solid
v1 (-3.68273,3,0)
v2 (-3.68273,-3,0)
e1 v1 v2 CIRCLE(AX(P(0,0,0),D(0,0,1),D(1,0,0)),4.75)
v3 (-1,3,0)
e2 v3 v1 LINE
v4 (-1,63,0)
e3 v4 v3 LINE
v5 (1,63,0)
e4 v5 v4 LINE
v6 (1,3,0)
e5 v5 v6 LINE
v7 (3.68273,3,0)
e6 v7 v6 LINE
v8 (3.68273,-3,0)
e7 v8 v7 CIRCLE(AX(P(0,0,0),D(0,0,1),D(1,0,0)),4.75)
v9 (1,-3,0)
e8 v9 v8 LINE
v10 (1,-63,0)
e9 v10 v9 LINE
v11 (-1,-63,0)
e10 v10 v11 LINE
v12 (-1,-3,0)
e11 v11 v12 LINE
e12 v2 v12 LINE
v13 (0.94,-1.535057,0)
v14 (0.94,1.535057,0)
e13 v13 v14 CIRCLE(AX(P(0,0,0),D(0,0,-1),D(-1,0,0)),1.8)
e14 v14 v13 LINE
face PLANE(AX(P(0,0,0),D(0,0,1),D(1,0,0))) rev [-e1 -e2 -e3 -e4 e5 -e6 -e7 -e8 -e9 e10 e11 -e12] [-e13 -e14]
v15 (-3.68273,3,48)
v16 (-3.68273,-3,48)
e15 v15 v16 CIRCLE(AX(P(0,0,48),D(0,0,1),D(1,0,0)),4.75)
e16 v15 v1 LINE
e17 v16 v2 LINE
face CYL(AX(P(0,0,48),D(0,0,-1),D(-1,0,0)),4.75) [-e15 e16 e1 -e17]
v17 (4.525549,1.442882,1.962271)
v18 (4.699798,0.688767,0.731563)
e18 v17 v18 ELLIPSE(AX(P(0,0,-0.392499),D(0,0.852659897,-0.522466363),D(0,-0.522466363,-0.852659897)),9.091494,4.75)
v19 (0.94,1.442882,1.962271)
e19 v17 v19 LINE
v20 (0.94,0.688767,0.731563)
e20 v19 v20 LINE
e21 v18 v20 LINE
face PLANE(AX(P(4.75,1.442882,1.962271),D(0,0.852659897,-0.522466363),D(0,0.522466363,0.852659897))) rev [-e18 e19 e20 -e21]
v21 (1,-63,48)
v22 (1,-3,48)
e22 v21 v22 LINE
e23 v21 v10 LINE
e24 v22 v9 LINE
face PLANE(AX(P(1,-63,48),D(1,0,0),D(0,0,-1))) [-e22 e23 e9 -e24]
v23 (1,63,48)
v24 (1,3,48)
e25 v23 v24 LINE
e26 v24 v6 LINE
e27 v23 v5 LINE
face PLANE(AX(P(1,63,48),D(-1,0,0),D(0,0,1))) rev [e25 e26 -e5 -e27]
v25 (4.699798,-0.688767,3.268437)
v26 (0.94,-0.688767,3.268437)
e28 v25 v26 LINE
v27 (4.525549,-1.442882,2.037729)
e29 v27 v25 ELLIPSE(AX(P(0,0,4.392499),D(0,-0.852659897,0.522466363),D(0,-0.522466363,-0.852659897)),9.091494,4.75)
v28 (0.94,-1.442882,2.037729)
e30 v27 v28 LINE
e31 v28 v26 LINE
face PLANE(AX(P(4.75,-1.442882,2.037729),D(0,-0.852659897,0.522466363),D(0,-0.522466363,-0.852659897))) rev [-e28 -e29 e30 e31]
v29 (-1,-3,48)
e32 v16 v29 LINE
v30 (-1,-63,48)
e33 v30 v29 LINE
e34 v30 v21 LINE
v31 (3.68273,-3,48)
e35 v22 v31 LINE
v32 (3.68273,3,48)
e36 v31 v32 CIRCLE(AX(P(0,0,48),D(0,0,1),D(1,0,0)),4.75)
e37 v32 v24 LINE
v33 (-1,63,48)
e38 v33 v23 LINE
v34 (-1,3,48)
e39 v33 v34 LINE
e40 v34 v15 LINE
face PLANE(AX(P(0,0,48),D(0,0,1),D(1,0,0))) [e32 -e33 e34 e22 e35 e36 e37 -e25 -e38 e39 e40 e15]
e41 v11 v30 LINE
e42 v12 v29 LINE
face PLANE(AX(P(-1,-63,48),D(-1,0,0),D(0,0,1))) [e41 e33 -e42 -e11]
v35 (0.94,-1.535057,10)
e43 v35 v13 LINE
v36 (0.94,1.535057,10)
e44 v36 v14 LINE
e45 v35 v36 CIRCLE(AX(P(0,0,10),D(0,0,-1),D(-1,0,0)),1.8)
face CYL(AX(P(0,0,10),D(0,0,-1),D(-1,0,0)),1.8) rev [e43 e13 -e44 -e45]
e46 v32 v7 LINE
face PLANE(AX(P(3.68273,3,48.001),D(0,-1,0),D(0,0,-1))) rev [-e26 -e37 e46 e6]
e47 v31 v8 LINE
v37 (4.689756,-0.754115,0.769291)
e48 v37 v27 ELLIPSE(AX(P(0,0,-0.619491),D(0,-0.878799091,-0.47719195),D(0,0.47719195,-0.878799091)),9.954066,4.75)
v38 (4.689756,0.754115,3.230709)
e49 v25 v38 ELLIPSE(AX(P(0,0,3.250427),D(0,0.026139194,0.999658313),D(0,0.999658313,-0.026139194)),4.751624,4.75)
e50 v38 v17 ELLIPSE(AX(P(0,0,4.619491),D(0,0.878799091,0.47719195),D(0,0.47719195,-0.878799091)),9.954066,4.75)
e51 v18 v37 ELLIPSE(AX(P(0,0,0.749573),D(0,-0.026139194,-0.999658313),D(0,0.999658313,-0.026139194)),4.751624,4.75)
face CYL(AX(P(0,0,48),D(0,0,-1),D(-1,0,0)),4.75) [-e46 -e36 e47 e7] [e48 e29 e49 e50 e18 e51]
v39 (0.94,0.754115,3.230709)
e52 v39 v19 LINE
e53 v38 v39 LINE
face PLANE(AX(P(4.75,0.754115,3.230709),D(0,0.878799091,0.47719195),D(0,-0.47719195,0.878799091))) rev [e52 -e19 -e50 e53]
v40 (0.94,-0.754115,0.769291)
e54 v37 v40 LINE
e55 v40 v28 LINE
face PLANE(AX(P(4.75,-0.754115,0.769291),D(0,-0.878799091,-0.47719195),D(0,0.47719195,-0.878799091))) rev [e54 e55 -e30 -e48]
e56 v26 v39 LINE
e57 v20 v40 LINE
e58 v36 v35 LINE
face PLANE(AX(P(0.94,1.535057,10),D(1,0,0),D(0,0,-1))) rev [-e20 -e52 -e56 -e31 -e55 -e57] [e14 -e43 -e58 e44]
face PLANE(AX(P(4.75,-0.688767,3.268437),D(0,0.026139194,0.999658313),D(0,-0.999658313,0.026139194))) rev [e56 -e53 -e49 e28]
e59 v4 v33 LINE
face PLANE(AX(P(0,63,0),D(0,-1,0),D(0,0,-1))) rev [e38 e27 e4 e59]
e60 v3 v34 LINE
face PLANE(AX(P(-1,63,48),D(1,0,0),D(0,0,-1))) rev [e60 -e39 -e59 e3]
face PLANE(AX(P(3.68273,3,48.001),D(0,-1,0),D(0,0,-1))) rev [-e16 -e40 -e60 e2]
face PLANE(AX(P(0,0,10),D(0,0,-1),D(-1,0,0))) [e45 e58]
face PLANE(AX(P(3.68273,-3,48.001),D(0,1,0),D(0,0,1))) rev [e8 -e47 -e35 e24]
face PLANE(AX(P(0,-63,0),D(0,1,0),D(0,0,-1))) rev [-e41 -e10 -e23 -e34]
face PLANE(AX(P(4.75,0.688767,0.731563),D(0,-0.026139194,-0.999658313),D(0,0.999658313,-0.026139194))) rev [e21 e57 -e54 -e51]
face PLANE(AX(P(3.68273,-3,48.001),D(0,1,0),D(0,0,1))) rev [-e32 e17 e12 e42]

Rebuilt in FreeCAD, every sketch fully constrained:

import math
import FreeCAD as App
import Part
import Sketcher

doc = App.newDocument("Part")
params = doc.addObject("Spreadsheet::Sheet", "Params")
for row, (alias, value) in enumerate([
    ("sketch1_diameter", "9.5 mm"),
    ("pad1_length", "48 mm"),
    ("sketch2_radius", "1.8 mm"),
    ("pocket1_length", "10 mm"),
    ("sketch4_radius", "4.75 mm"),
    ("sketch5_radius", "4.75 mm"),
    ("sketch6_width", "2 mm"),
    ("sketch6_height", "48 mm"),
    ("pad2_length", "60 mm"),
], start=1):
    params.set(f"A{row}", alias)
    params.set(f"B{row}", "=" + value)
    params.setAlias(f"B{row}", alias)

body = doc.addObject("PartDesign::Body", "Body")

sketch1 = body.newObject("Sketcher::SketchObject", "Sketch")
sketch1.AttachmentSupport = (doc.getObject("XY_Plane"), [""])
sketch1.MapMode = "FlatFace"
sketch1.addGeometry(Part.Circle(App.Vector(0, 0, 0), App.Vector(0, 0, 1), 4.8), False)
sketch1.addConstraint(Sketcher.Constraint("Coincident", 0, 3, -1, 1))
sketch1.addConstraint(Sketcher.Constraint("Diameter", 0, 9.5))
sketch1.setExpression("Constraints[1]", "Params.sketch1_diameter")
pad1 = body.newObject("PartDesign::Pad", "Pad")
pad1.Profile = sketch1
pad1.setExpression("Length", "Params.pad1_length")

sketch2 = body.newObject("Sketcher::SketchObject", "Sketch001")
sketch2.AttachmentSupport = (doc.getObject("XY_Plane"), [""])
sketch2.MapMode = "FlatFace"
sketch2.addGeometry(Part.LineSegment(App.Vector(0.9, 1.5, 0), App.Vector(0.9, -1.5, 0)), False)
sketch2.addGeometry(Part.ArcOfCircle(Part.Circle(App.Vector(0, 0, 0), App.Vector(0, 0, 1), 1.8), math.radians(59), math.radians(301)), False)
sketch2.addConstraint(Sketcher.Constraint("Coincident", 0, 1, 1, 1))
sketch2.addConstraint(Sketcher.Constraint("Coincident", 1, 2, 0, 2))
sketch2.addConstraint(Sketcher.Constraint("Vertical", 0))
sketch2.addConstraint(Sketcher.Constraint("Coincident", 1, 3, -1, 1))
sketch2.addConstraint(Sketcher.Constraint("Radius", 1, 1.8))
sketch2.addConstraint(Sketcher.Constraint("DistanceX", -1, 1, 0, 1, 0.94))
sketch2.setExpression("Constraints[4]", "Params.sketch2_radius")
pocket1 = body.newObject("PartDesign::Pocket", "Pocket")
pocket1.Profile = sketch2
pocket1.setExpression("Length", "Params.pocket1_length")
pocket1.Reversed = True

sketch3 = body.newObject("Sketcher::SketchObject", "Sketch002")
sketch3.AttachmentSupport = (doc.getObject("YZ_Plane"), [""])
sketch3.MapMode = "FlatFace"
sketch3.AttachmentOffset = App.Placement(App.Vector(0, 0, 0.94), App.Rotation())
sketch3.addGeometry(Part.LineSegment(App.Vector(0.8, 3.2, 0), App.Vector(1.4, 2, 0)), False)
sketch3.addGeometry(Part.LineSegment(App.Vector(1.4, 2, 0), App.Vector(0.7, 0.7, 0)), False)
sketch3.addGeometry(Part.LineSegment(App.Vector(0.7, 0.7, 0), App.Vector(-0.8, 0.8, 0)), False)
sketch3.addGeometry(Part.LineSegment(App.Vector(-0.8, 0.8, 0), App.Vector(-1.4, 2, 0)), False)
sketch3.addGeometry(Part.LineSegment(App.Vector(-1.4, 2, 0), App.Vector(-0.7, 3.3, 0)), False)
sketch3.addGeometry(Part.LineSegment(App.Vector(-0.7, 3.3, 0), App.Vector(0.8, 3.2, 0)), False)
sketch3.addConstraint(Sketcher.Constraint("Coincident", 0, 2, 1, 1))
sketch3.addConstraint(Sketcher.Constraint("Coincident", 1, 2, 2, 1))
sketch3.addConstraint(Sketcher.Constraint("Coincident", 2, 2, 3, 1))
sketch3.addConstraint(Sketcher.Constraint("Coincident", 3, 2, 4, 1))
sketch3.addConstraint(Sketcher.Constraint("Coincident", 4, 2, 5, 1))
sketch3.addConstraint(Sketcher.Constraint("Coincident", 5, 2, 0, 1))
sketch3.addConstraint(Sketcher.Constraint("Parallel", 0, 3))
sketch3.addConstraint(Sketcher.Constraint("Parallel", 1, 4))
sketch3.addConstraint(Sketcher.Constraint("Parallel", 2, 5))
sketch3.addConstraint(Sketcher.Constraint("Equal", 0, 1))
sketch3.addConstraint(Sketcher.Constraint("Equal", 1, 2))
sketch3.addConstraint(Sketcher.Constraint("Equal", 2, 3))
sketch3.addConstraint(Sketcher.Constraint("DistanceY", -1, 1, 0, 2, 1.962271))
sketch3.addConstraint(Sketcher.Constraint("DistanceY", -1, 1, 2, 2, 0.769291))
sketch3.addConstraint(Sketcher.Constraint("DistanceY", -1, 1, 3, 2, 2.037729))
sketch3.addConstraint(Sketcher.Constraint("DistanceY", 1, 2, 0, 2, 1.230709))
sketch3.addConstraint(Sketcher.Constraint("DistanceX", 3, 2, 1, 2, 2.13165))
sketch3.addConstraint(Sketcher.Constraint("DistanceX", -1, 1, 0, 2, 1.442882))
pocket2 = body.newObject("PartDesign::Pocket", "Pocket001")
pocket2.Profile = sketch3
pocket2.Type = "ThroughAll"
pocket2.Reversed = True

sketch4 = body.newObject("Sketcher::SketchObject", "Sketch003")
sketch4.AttachmentSupport = (doc.getObject("XY_Plane"), [""])
sketch4.MapMode = "FlatFace"
sketch4.addGeometry(Part.LineSegment(App.Vector(3.7, 3, 0), App.Vector(-3.7, 3, 0)), False)
sketch4.addGeometry(Part.ArcOfCircle(Part.Circle(App.Vector(0, 0, 0), App.Vector(0, 0, 1), 4.8), math.radians(39), math.radians(141)), False)
sketch4.addConstraint(Sketcher.Constraint("Coincident", 0, 1, 1, 1))
sketch4.addConstraint(Sketcher.Constraint("Coincident", 1, 2, 0, 2))
sketch4.addConstraint(Sketcher.Constraint("Horizontal", 0))
sketch4.addConstraint(Sketcher.Constraint("Coincident", 1, 3, -1, 1))
sketch4.addConstraint(Sketcher.Constraint("Radius", 1, 4.75))
sketch4.addConstraint(Sketcher.Constraint("DistanceY", -1, 1, 0, 1, 3.0))
sketch4.setExpression("Constraints[4]", "Params.sketch4_radius")
pocket3 = body.newObject("PartDesign::Pocket", "Pocket002")
pocket3.Profile = sketch4
pocket3.Type = "UpToFirst"
pocket3.Reversed = True

sketch5 = body.newObject("Sketcher::SketchObject", "Sketch004")
sketch5.AttachmentSupport = (doc.getObject("XY_Plane"), [""])
sketch5.MapMode = "FlatFace"
sketch5.addGeometry(Part.LineSegment(App.Vector(-3.7, -3, 0), App.Vector(3.7, -3, 0)), False)
sketch5.addGeometry(Part.ArcOfCircle(Part.Circle(App.Vector(0, 0, 0), App.Vector(0, 0, 1), 4.8), math.radians(-141), math.radians(-39)), False)
sketch5.addConstraint(Sketcher.Constraint("Coincident", 0, 1, 1, 1))
sketch5.addConstraint(Sketcher.Constraint("Coincident", 1, 2, 0, 2))
sketch5.addConstraint(Sketcher.Constraint("Horizontal", 0))
sketch5.addConstraint(Sketcher.Constraint("Coincident", 1, 3, -1, 1))
sketch5.addConstraint(Sketcher.Constraint("Radius", 1, 4.75))
sketch5.addConstraint(Sketcher.Constraint("DistanceY", 0, 1, -1, 1, 3.0))
sketch5.setExpression("Constraints[4]", "Params.sketch5_radius")
pocket4 = body.newObject("PartDesign::Pocket", "Pocket003")
pocket4.Profile = sketch5
pocket4.Type = "UpToFirst"
pocket4.Reversed = True

sketch6 = body.newObject("Sketcher::SketchObject", "Sketch005")
sketch6.AttachmentSupport = (doc.getObject("XZ_Plane"), [""])
sketch6.MapMode = "FlatFace"
sketch6.AttachmentOffset = App.Placement(App.Vector(0, 0, -3), App.Rotation())
sketch6.addGeometry(Part.LineSegment(App.Vector(-1, 0, 0), App.Vector(-1, 48, 0)), False)
sketch6.addGeometry(Part.LineSegment(App.Vector(-1, 48, 0), App.Vector(1, 48, 0)), False)
sketch6.addGeometry(Part.LineSegment(App.Vector(1, 48, 0), App.Vector(1, 0, 0)), False)
sketch6.addGeometry(Part.LineSegment(App.Vector(1, 0, 0), App.Vector(-1, 0, 0)), False)
sketch6.addConstraint(Sketcher.Constraint("Coincident", 0, 2, 1, 1))
sketch6.addConstraint(Sketcher.Constraint("Coincident", 1, 2, 2, 1))
sketch6.addConstraint(Sketcher.Constraint("Coincident", 2, 2, 3, 1))
sketch6.addConstraint(Sketcher.Constraint("Coincident", 3, 2, 0, 1))
sketch6.addConstraint(Sketcher.Constraint("Vertical", 0))
sketch6.addConstraint(Sketcher.Constraint("Horizontal", 1))
sketch6.addConstraint(Sketcher.Constraint("Vertical", 2))
sketch6.addConstraint(Sketcher.Constraint("Horizontal", 3))
sketch6.addConstraint(Sketcher.Constraint("Symmetric", 2, 2, 3, 2, -1, 1))
sketch6.addConstraint(Sketcher.Constraint("DistanceX", 1, 1, 1, 2, 2.0))
sketch6.addConstraint(Sketcher.Constraint("DistanceY", 0, 1, 0, 2, 48.0))
sketch6.setExpression("Constraints[9]", "Params.sketch6_width")
sketch6.setExpression("Constraints[10]", "Params.sketch6_height")
pad2 = body.newObject("PartDesign::Pad", "Pad001")
pad2.Profile = sketch6
pad2.setExpression("Length", "Params.pad2_length")
pad2.Reversed = True
doc.recompute()

mirrored = body.newObject("PartDesign::Mirrored", "Mirrored")
mirrored.Originals = [pad2]
mirrored.MirrorPlane = (doc.getObject("XZ_Plane"), [""])
body.Tip = mirrored

doc.recompute()
